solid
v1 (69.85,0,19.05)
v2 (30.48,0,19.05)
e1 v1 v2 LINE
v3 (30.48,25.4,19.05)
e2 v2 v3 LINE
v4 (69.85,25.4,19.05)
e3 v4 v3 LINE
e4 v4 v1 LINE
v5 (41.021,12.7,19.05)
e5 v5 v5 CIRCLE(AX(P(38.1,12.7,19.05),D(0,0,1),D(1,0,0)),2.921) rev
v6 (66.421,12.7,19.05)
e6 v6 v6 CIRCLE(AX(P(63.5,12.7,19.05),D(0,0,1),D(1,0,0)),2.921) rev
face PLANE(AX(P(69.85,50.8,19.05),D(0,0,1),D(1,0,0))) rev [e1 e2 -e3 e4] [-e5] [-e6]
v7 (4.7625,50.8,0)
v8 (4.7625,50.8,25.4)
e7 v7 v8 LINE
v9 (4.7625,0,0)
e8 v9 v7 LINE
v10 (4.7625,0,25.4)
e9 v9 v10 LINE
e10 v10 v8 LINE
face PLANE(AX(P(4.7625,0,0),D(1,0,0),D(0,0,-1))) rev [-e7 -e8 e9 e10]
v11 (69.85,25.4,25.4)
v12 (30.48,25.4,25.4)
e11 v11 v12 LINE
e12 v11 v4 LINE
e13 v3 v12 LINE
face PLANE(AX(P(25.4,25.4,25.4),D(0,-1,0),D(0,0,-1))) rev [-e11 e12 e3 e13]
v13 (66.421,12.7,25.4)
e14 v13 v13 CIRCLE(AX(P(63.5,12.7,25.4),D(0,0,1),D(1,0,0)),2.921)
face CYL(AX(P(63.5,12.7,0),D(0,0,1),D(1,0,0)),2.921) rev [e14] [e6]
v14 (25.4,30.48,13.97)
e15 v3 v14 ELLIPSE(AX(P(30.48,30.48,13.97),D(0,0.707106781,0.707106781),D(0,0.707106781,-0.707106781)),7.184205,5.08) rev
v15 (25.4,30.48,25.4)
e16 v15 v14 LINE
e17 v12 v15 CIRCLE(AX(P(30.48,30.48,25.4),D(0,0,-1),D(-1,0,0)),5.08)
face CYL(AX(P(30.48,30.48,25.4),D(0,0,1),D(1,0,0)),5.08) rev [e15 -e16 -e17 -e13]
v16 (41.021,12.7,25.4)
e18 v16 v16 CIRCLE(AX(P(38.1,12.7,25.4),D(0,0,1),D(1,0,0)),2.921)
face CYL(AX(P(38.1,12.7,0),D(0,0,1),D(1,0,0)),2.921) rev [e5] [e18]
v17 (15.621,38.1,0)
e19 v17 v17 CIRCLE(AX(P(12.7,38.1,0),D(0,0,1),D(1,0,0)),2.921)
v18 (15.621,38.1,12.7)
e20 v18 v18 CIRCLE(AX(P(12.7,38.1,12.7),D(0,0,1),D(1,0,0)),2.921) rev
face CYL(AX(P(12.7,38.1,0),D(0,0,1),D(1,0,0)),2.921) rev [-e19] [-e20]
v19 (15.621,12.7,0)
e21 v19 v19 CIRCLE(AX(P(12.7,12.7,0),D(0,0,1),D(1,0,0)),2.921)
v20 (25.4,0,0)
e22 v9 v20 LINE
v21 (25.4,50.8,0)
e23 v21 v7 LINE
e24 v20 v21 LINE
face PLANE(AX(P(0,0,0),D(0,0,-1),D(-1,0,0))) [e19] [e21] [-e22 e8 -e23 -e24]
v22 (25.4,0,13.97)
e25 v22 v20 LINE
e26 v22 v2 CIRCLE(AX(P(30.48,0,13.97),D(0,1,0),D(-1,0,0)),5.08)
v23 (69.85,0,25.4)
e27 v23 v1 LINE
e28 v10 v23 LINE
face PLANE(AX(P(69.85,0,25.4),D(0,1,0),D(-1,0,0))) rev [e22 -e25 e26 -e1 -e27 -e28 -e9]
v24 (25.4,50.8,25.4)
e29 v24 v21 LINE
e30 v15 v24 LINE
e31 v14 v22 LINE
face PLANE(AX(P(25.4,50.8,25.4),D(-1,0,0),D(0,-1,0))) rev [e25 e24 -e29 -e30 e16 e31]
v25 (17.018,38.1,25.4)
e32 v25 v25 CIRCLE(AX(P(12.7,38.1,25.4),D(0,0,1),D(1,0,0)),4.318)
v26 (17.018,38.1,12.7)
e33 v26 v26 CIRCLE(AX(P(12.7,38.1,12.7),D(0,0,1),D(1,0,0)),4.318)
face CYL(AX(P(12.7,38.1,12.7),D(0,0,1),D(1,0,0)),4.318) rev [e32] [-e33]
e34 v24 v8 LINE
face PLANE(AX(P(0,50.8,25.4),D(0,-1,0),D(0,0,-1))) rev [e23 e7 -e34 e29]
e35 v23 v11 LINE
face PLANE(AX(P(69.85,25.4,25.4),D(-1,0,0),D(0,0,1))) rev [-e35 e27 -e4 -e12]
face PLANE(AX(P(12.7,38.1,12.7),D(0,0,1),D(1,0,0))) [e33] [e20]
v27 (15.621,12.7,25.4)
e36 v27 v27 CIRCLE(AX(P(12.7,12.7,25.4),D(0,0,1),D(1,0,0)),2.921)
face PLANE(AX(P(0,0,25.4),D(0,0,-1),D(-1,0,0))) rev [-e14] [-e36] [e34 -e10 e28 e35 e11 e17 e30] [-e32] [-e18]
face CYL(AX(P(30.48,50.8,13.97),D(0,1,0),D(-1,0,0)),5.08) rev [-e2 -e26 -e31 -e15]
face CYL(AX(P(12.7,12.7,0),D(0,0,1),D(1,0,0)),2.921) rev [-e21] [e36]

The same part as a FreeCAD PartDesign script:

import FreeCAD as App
import Part
import Sketcher
from FreeCAD import Vector
Q = App.Units.Quantity


def edges_at(feature, points):
    """Names of the edges that pass closest to the given points."""
    edges = feature.Shape.Edges
    near = lambda p: min(range(len(edges)), key=lambda i: edges[i].distToShape(Part.Vertex(*p))[0])
    return sorted({f"Edge{near(p) + 1}" for p in points})


def add_polygon(sketch, points):
    """Adds a closed chain of lines whose ends are joined by coincident constraints."""
    first, n = sketch.GeometryCount, len(points)
    for a, b in zip(points, points[1:] + points[:1]):
        sketch.addGeometry(Part.LineSegment(App.Vector(*a, 0), App.Vector(*b, 0)), False)
    for i in range(n):
        sketch.addConstraint(Sketcher.Constraint("Coincident", first + i, 2, first + (i + 1) % n, 1))

doc = App.newDocument("Part")
params = doc.addObject("Spreadsheet::Sheet", "Params")
for row, (alias, value) in enumerate([
    ("sketch1_width", "1 in"),
    ("sketch1_width2", "2.75 in"),
    ("pad1_length", "1 in"),
    ("sketch2_diameter", "0.23 in"),
    ("sketch3_height", "2 in"),
    ("sketch3_width", "0.1875 in"),
    ("sketch4_width", "1.75 in"),
    ("sketch4_height", "0.75 in"),
    ("fillet_radius", "0.2 in"),
    ("sketch5_diameter", "0.34 in"),
    ("pocket4_length", "0.5 in"),
], start=1):
    params.set(f"A{row}", alias)
    params.set(f"B{row}", "=" + value)
    params.setAlias(f"B{row}", alias)

body = doc.addObject("PartDesign::Body", "Body")

# Sketch on XY plane
sketch1 = body.newObject("Sketcher::SketchObject", "Sketch")
sketch1.AttachmentSupport = (doc.getObject("XY_Plane"), [""])
sketch1.MapMode = "FlatFace"
add_polygon(sketch1, [(0, 51), (0, 0), (70, 0), (70, 25), (25, 25), (25, 51)])  # lines 0-5
sketch1.addConstraint([
    Sketcher.Constraint("Vertical", 0),
    Sketcher.Constraint("Horizontal", 1),
    Sketcher.Constraint("Vertical", 2),
    Sketcher.Constraint("Horizontal", 3),
    Sketcher.Constraint("Vertical", 4),
    Sketcher.Constraint("Horizontal", 5),
    Sketcher.Constraint("Coincident", 0, 2, -1, 1),
    Sketcher.Constraint("Equal", 5, 2),
    Sketcher.Constraint("Equal", 2, 4),
    Sketcher.Constraint("DistanceX", 5, 2, 5, 1, Q("1 in")),
    Sketcher.Constraint("DistanceX", 1, 1, 1, 2, Q("2.75 in")),
])
sketch1.setExpression("Constraints[15]", "Params.sketch1_width")
sketch1.setExpression("Constraints[16]", "Params.sketch1_width2")
pad1 = body.newObject("PartDesign::Pad", "Pad")
pad1.Profile = sketch1
pad1.setExpression("Length", "Params.pad1_length")

# Sketch on XY plane
sketch2 = body.newObject("Sketcher::SketchObject", "Sketch001")
sketch2.AttachmentSupport = (doc.getObject("XY_Plane"), [""])
sketch2.MapMode = "FlatFace"
sketch2.AttachmentOffset = App.Placement(Vector(0, 0, 1 * 25.4), App.Rotation())
sketch2.addGeometry([
    Part.Circle(Vector(12.7, 38.1, 0), Vector(0, 0, 1), 2.9),
    Part.Circle(Vector(12.7, 12.7, 0), Vector(0, 0, 1), 2.9),
    Part.Circle(Vector(38.1, 12.7, 0), Vector(0, 0, 1), 2.9),
    Part.Circle(Vector(63.5, 12.7, 0), Vector(0, 0, 1), 2.9),
], False)
sketch2.addConstraint([
    Sketcher.Constraint("Equal", 0, 1),
    Sketcher.Constraint("Equal", 1, 2),
    Sketcher.Constraint("Equal", 2, 3),
    Sketcher.Constraint("Horizontal", 1, 3, 2, 3),
    Sketcher.Constraint("Horizontal", 2, 3, 3, 3),
    Sketcher.Constraint("Vertical", 0, 3, 1, 3),
    Sketcher.Constraint("Diameter", 0, Q("0.23 in")),
    Sketcher.Constraint("DistanceY", 1, 3, 0, 3, Q("1 in")),
    Sketcher.Constraint("DistanceX", 1, 3, 2, 3, Q("1 in")),
    Sketcher.Constraint("DistanceX", 2, 3, 3, 3, Q("1 in")),
    Sketcher.Constraint("DistanceX", -1, 1, 0, 3, Q("0.5 in")),
    Sketcher.Constraint("DistanceY", -1, 1, 0, 3, Q("1.5 in")),
])
sketch2.setExpression("Constraints[6]", "Params.sketch2_diameter")
pocket1 = body.newObject("PartDesign::Pocket", "Pocket")
pocket1.Profile = sketch2
pocket1.Type = "ThroughAll"

# Sketch on XY plane
sketch3 = body.newObject("Sketcher::SketchObject", "Sketch002")
sketch3.AttachmentSupport = (doc.getObject("XY_Plane"), [""])
sketch3.MapMode = "FlatFace"
sketch3.AttachmentOffset = App.Placement(Vector(0, 0, 1 * 25.4), App.Rotation())
add_polygon(sketch3, [(0, 50.8), (0, 0), (4.8, 0), (4.8, 50.8)])  # lines 0-3
sketch3.addConstraint([
    Sketcher.Constraint("Vertical", 0),
    Sketcher.Constraint("Horizontal", 1),
    Sketcher.Constraint("Vertical", 2),
    Sketcher.Constraint("Horizontal", 3),
    Sketcher.Constraint("Coincident", 0, 2, -1, 1),
    Sketcher.Constraint("DistanceY", 0, 2, 0, 1, Q("2 in")),
    Sketcher.Constraint("DistanceX", 1, 1, 1, 2, Q("0.1875 in")),
])
sketch3.setExpression("Constraints[9]", "Params.sketch3_height")
sketch3.setExpression("Constraints[10]", "Params.sketch3_width")
pocket2 = body.newObject("PartDesign::Pocket", "Pocket001")
pocket2.Profile = sketch3
pocket2.Type = "ThroughAll"

# Sketch on XZ plane
sketch4 = body.newObject("Sketcher::SketchObject", "Sketch003")
sketch4.AttachmentSupport = (doc.getObject("XZ_Plane"), [""])
sketch4.MapMode = "FlatFace"
add_polygon(sketch4, [(25, 19), (25, 0), (70, 0), (70, 19)])  # lines 0-3
sketch4.addConstraint([
    Sketcher.Constraint("Vertical", 0),
    Sketcher.Constraint("Horizontal", 1),
    Sketcher.Constraint("Vertical", 2),
    Sketcher.Constraint("Horizontal", 3),
    Sketcher.Constraint("PointOnObject", 0, 2, -1),
    Sketcher.Constraint("DistanceX", -1, 1, 0, 2, Q("1 in")),
    Sketcher.Constraint("DistanceX", 1, 1, 1, 2, Q("1.75 in")),
    Sketcher.Constraint("DistanceY", 0, 2, 0, 1, Q("0.75 in")),
])
sketch4.setExpression("Constraints[10]", "Params.sketch4_width")
sketch4.setExpression("Constraints[11]", "Params.sketch4_height")
pocket3 = body.newObject("PartDesign::Pocket", "Pocket002")
pocket3.Profile = sketch4
pocket3.Type = "ThroughAll"
doc.recompute()

fillet = body.newObject("PartDesign::Fillet", "Fillet")
fillet.Base = (pocket3, edges_at(pocket3, [(25.4, 25.4, 22.225), (25.4, 12.7, 19.05)]))
fillet.setExpression("Radius", "Params.fillet_radius")

# Sketch on XY plane
sketch5 = body.newObject("Sketcher::SketchObject", "Sketch004")
sketch5.AttachmentSupport = (doc.getObject("XY_Plane"), [""])
sketch5.MapMode = "FlatFace"
sketch5.AttachmentOffset = App.Placement(Vector(0, 0, 1 * 25.4), App.Rotation())
sketch5.addGeometry(Part.Circle(Vector(12.7, 38.1, 0), Vector(0, 0, 1), 4.3), False)
sketch5.addConstraint([
    Sketcher.Constraint("Diameter", 0, Q("0.34 in")),
    Sketcher.Constraint("DistanceX", -1, 1, 0, 3, Q("0.5 in")),
    Sketcher.Constraint("DistanceY", -1, 1, 0, 3, Q("1.5 in")),
])
sketch5.setExpression("Constraints[0]", "Params.sketch5_diameter")
pocket4 = body.newObject("PartDesign::Pocket", "Pocket003")
pocket4.Profile = sketch5
pocket4.setExpression("Length", "Params.pocket4_length")

doc.recompute()
